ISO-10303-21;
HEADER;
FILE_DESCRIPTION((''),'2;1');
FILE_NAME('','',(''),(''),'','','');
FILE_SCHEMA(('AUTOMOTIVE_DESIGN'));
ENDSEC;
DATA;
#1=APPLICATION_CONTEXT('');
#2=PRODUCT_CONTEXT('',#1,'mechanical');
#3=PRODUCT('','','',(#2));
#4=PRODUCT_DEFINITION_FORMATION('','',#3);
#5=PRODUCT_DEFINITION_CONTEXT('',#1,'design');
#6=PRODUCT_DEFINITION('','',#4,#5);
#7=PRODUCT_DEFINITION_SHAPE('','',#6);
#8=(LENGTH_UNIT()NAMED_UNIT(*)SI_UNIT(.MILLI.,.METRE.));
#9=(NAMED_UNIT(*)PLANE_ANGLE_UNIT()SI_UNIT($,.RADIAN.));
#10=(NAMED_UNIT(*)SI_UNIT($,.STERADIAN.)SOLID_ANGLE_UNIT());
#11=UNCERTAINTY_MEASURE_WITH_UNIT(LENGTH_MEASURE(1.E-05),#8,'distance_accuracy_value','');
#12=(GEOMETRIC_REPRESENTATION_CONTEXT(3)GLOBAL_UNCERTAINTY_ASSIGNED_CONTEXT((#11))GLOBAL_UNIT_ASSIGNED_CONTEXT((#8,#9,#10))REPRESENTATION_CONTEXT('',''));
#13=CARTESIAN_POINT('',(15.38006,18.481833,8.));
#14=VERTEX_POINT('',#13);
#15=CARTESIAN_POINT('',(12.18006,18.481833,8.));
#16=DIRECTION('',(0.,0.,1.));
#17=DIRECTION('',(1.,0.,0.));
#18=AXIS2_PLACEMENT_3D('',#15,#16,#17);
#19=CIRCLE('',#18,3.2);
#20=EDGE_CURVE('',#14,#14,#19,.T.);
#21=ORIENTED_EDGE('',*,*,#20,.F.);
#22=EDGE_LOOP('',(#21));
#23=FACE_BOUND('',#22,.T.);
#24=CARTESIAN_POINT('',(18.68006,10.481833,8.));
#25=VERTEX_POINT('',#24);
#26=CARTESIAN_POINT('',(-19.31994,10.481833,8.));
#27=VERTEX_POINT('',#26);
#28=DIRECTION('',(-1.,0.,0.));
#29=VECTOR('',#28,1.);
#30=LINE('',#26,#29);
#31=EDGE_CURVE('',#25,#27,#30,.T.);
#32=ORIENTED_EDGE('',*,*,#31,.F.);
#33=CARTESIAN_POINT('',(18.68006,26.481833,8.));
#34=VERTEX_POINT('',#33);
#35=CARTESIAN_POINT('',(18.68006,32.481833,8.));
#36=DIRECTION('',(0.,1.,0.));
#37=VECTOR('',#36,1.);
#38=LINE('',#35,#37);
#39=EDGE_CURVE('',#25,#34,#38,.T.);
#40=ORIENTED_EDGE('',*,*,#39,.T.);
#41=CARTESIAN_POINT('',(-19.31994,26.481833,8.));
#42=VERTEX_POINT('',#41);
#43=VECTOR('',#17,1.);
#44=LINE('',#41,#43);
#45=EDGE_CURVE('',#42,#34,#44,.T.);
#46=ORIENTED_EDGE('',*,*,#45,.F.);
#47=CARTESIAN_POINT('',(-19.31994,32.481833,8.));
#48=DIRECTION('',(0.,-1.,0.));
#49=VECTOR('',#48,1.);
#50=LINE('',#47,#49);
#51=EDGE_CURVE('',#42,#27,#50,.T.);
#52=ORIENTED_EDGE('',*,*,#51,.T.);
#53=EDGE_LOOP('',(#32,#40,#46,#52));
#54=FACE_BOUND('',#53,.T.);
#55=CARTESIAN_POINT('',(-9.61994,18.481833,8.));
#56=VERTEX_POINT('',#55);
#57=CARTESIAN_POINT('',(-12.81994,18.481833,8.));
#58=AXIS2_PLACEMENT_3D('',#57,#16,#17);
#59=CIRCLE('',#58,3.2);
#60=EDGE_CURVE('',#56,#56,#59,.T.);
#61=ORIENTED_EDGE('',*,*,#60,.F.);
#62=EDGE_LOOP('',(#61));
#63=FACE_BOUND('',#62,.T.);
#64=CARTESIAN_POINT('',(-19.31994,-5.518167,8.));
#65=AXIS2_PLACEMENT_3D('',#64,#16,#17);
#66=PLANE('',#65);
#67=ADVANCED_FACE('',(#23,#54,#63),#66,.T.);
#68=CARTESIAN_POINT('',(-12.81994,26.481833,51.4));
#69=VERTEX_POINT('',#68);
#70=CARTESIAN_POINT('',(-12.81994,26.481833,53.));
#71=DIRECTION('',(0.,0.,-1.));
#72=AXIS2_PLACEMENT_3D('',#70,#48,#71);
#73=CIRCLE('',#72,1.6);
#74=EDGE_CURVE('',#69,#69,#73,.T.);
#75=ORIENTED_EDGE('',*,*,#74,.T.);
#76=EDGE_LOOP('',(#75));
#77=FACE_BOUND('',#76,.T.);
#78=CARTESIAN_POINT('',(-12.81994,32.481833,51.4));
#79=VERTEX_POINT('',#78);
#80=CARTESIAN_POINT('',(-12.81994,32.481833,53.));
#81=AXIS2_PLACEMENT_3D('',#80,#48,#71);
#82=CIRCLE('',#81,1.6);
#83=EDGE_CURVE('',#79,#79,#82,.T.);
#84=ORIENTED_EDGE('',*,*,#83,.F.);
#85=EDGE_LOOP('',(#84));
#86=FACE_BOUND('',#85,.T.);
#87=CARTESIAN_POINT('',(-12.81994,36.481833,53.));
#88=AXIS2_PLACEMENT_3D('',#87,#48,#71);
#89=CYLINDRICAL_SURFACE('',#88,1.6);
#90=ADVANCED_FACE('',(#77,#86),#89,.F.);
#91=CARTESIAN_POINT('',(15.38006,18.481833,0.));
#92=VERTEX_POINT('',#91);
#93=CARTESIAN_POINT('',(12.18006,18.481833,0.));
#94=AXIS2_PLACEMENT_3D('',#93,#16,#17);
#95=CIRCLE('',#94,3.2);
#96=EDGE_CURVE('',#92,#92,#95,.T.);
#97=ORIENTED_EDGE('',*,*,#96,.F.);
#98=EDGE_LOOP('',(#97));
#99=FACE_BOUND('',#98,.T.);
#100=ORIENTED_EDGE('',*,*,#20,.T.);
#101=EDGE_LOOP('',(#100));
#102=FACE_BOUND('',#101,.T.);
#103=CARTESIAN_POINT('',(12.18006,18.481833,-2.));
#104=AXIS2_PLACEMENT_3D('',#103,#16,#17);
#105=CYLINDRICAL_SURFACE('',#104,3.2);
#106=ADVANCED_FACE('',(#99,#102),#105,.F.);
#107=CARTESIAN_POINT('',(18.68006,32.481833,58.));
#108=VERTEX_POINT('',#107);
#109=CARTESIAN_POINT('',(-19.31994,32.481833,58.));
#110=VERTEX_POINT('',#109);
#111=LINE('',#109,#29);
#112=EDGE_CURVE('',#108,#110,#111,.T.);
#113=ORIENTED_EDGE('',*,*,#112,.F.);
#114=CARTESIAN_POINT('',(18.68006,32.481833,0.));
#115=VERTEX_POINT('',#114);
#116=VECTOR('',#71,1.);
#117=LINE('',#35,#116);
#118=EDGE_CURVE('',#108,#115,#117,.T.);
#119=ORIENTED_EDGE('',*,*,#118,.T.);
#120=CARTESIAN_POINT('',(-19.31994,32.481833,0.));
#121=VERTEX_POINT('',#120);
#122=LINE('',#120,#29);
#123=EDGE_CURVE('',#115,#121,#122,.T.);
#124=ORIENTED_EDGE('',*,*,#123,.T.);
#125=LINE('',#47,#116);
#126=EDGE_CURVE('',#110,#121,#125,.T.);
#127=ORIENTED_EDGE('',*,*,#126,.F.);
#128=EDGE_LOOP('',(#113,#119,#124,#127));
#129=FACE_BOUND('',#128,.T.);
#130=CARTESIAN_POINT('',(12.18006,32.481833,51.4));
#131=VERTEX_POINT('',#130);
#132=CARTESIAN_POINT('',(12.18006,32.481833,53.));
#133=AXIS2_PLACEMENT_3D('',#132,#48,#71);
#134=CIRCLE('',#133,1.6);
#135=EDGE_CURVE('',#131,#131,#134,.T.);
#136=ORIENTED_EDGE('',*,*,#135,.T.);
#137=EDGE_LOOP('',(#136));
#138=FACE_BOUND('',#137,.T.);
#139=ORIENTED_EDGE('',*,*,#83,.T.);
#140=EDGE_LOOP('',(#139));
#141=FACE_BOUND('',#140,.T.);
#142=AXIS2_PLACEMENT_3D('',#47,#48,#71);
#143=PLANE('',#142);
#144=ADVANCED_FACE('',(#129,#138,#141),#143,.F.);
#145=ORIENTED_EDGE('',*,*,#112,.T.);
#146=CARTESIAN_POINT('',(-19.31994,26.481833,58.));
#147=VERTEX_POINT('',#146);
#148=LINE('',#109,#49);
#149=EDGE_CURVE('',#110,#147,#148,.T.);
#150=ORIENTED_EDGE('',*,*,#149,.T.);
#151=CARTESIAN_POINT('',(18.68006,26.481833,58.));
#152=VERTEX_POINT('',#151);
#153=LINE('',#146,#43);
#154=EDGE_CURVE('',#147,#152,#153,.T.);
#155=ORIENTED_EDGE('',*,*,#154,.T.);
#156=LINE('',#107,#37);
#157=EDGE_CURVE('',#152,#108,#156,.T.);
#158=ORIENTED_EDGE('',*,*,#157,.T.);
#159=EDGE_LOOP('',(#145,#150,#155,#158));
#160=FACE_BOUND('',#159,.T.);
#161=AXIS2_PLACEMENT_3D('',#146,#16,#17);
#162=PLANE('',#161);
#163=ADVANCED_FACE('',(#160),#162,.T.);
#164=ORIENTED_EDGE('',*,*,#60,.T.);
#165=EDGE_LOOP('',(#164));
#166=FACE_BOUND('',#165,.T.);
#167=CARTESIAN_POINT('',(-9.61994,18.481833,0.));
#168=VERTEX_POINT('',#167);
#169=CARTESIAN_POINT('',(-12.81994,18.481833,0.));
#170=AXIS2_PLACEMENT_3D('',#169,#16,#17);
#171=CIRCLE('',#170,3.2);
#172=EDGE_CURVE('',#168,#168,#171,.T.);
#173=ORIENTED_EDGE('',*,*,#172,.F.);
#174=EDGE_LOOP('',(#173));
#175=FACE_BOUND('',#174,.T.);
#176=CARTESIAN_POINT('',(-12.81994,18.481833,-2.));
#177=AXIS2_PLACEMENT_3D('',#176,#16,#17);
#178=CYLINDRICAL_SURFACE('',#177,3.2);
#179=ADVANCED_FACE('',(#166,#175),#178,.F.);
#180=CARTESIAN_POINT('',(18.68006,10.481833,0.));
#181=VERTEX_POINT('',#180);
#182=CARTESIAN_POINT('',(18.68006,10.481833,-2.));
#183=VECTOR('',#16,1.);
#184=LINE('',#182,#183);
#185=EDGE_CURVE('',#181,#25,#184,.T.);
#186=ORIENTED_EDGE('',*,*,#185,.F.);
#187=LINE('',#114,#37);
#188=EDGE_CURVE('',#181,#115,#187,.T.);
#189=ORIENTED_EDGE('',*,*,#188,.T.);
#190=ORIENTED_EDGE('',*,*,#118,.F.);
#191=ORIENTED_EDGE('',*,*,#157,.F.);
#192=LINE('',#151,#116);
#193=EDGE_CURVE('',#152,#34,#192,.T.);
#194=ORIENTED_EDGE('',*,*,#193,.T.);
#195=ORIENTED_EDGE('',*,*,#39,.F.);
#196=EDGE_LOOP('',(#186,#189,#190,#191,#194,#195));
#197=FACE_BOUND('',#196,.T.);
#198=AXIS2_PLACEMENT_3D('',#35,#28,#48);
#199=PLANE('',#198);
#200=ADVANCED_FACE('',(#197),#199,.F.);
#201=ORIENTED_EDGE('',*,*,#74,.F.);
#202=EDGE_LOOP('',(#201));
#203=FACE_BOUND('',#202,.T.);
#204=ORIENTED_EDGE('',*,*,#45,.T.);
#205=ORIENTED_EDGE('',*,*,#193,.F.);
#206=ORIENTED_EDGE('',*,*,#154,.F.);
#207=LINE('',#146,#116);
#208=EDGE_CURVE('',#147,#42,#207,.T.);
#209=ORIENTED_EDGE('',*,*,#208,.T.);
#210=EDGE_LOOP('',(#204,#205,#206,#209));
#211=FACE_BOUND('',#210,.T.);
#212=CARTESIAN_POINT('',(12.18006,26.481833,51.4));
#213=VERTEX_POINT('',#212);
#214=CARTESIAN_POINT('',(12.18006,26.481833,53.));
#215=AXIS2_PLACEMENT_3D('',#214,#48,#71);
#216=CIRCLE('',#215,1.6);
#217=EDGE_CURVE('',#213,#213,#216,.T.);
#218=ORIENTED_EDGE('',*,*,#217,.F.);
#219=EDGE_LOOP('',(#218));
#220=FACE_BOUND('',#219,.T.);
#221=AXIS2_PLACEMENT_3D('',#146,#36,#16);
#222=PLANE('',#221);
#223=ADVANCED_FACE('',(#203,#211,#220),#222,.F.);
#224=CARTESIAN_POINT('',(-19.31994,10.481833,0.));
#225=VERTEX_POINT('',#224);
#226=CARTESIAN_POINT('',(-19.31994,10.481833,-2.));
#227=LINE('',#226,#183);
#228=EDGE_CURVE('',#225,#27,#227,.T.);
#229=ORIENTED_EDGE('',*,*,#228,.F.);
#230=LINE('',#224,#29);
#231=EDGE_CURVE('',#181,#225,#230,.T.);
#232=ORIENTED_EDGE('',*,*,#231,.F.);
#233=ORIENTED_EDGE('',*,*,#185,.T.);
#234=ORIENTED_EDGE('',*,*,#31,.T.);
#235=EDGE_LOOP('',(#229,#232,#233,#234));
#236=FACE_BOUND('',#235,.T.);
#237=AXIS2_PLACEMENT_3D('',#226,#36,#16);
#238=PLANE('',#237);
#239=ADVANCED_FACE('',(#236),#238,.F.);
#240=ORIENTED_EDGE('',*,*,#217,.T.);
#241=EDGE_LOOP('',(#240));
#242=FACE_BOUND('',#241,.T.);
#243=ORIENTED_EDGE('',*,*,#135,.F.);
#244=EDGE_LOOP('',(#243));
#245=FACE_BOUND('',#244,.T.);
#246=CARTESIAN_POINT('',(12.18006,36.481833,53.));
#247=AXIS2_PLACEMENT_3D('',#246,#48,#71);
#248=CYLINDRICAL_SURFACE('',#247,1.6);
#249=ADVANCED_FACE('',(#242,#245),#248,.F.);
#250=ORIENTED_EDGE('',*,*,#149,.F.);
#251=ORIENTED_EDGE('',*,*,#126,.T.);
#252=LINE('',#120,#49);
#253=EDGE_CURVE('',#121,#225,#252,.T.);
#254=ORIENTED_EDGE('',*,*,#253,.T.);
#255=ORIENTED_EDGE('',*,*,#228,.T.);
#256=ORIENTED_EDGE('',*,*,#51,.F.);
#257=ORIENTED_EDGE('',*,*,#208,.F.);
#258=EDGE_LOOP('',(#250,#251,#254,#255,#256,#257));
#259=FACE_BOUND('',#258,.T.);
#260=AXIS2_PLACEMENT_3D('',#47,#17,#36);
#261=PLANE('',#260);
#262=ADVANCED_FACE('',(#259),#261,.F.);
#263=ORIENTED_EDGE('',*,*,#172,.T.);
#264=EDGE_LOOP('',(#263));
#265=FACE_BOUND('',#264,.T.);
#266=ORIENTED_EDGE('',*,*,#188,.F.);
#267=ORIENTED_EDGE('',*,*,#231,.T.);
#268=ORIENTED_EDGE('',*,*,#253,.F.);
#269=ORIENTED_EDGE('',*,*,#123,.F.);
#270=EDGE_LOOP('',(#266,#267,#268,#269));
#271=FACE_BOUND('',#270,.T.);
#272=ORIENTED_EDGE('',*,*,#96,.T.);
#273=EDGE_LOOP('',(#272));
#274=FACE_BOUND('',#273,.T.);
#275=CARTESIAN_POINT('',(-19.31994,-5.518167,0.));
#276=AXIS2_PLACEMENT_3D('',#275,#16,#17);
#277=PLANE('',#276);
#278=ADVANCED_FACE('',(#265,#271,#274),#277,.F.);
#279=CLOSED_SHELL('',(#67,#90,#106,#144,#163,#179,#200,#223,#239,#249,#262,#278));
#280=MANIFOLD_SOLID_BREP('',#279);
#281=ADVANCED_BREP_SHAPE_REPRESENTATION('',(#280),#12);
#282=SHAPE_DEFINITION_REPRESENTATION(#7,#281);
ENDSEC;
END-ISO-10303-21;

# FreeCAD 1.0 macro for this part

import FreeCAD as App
import Part
import Sketcher

V = App.Vector

doc = App.newDocument("Part")
params = doc.addObject("Spreadsheet::Sheet", "Params")
for row, (alias, value) in enumerate([
    ("sketch1_width", "38 mm"),
    ("pad1_length", "8 mm"),
    ("sketch2_width", "38 mm"),
    ("sketch2_height", "6 mm"),
    ("pad2_length", "50 mm"),
    ("sketch3_width", "38 mm"),
    ("sketch3_height", "16 mm"),
    ("pocket1_length", "10 mm"),
    ("sketch4_diameter", "6.4 mm"),
    ("pocket2_length", "10 mm"),
    ("sketch5_diameter", "3.2 mm"),
    ("pocket3_length", "10 mm"),
], start=1):
    params.set(f"A{row}", alias)
    params.set(f"B{row}", "=" + value)
    params.setAlias(f"B{row}", alias)

body = doc.addObject("PartDesign::Body", "Body")

sketch1 = body.newObject("Sketcher::SketchObject", "Sketch")
sketch1.AttachmentSupport = (doc.getObject("XY_Plane"), [""])
sketch1.MapMode = "FlatFace"
sketch1.addGeometry([
    Part.LineSegment(V(-19, 32, 0), V(-19, -6, 0)),
    Part.LineSegment(V(-19, -6, 0), V(19, -6, 0)),
    Part.LineSegment(V(19, -6, 0), V(19, 32, 0)),
    Part.LineSegment(V(19, 32, 0), V(-19, 32, 0)),
], False)
sketch1.addConstraint([
    Sketcher.Constraint("Coincident", 0, 2, 1, 1),
    Sketcher.Constraint("Coincident", 1, 2, 2, 1),
    Sketcher.Constraint("Coincident", 2, 2, 3, 1),
    Sketcher.Constraint("Coincident", 3, 2, 0, 1),
    Sketcher.Constraint("Vertical", 0),
    Sketcher.Constraint("Horizontal", 1),
    Sketcher.Constraint("Vertical", 2),
    Sketcher.Constraint("Horizontal", 3),
    Sketcher.Constraint("Equal", 3, 0),
    Sketcher.Constraint("DistanceX", 1, 1, 1, 2, 38.0),
    Sketcher.Constraint("DistanceX", 0, 2, -1, 1, 19.31994),
    Sketcher.Constraint("DistanceY", 0, 2, -1, 1, 5.518167),
])
sketch1.setExpression("Constraints[9]", "Params.sketch1_width")
pad1 = body.newObject("PartDesign::Pad", "Pad")
pad1.Profile = sketch1
pad1.setExpression("Length", "Params.pad1_length")

sketch2 = body.newObject("Sketcher::SketchObject", "Sketch001")
sketch2.AttachmentSupport = (doc.getObject("XY_Plane"), [""])
sketch2.MapMode = "FlatFace"
sketch2.AttachmentOffset = App.Placement(V(0, 0, 8), App.Rotation())
sketch2.addGeometry([
    Part.LineSegment(V(-19, 32, 0), V(-19, 26, 0)),
    Part.LineSegment(V(-19, 26, 0), V(19, 26, 0)),
    Part.LineSegment(V(19, 26, 0), V(19, 32, 0)),
    Part.LineSegment(V(19, 32, 0), V(-19, 32, 0)),
], False)
sketch2.addConstraint([
    Sketcher.Constraint("Coincident", 0, 2, 1, 1),
    Sketcher.Constraint("Coincident", 1, 2, 2, 1),
    Sketcher.Constraint("Coincident", 2, 2, 3, 1),
    Sketcher.Constraint("Coincident", 3, 2, 0, 1),
    Sketcher.Constraint("Vertical", 0),
    Sketcher.Constraint("Horizontal", 1),
    Sketcher.Constraint("Vertical", 2),
    Sketcher.Constraint("Horizontal", 3),
    Sketcher.Constraint("DistanceX", 1, 1, 1, 2, 38.0),
    Sketcher.Constraint("DistanceY", 0, 2, 0, 1, 6.0),
    Sketcher.Constraint("DistanceX", 0, 2, -1, 1, 19.31994),
    Sketcher.Constraint("DistanceY", -1, 1, 0, 2, 26.481833),
])
sketch2.setExpression("Constraints[8]", "Params.sketch2_width")
sketch2.setExpression("Constraints[9]", "Params.sketch2_height")
pad2 = body.newObject("PartDesign::Pad", "Pad001")
pad2.Profile = sketch2
pad2.setExpression("Length", "Params.pad2_length")

sketch3 = body.newObject("Sketcher::SketchObject", "Sketch002")
sketch3.AttachmentSupport = (doc.getObject("XY_Plane"), [""])
sketch3.MapMode = "FlatFace"
sketch3.AttachmentOffset = App.Placement(V(0, 0, 8), App.Rotation())
sketch3.addGeometry([
    Part.LineSegment(V(-19, 10, 0), V(-19, -6, 0)),
    Part.LineSegment(V(-19, -6, 0), V(19, -6, 0)),
    Part.LineSegment(V(19, -6, 0), V(19, 10, 0)),
    Part.LineSegment(V(19, 10, 0), V(-19, 10, 0)),
], False)
sketch3.addConstraint([
    Sketcher.Constraint("Coincident", 0, 2, 1, 1),
    Sketcher.Constraint("Coincident", 1, 2, 2, 1),
    Sketcher.Constraint("Coincident", 2, 2, 3, 1),
    Sketcher.Constraint("Coincident", 3, 2, 0, 1),
    Sketcher.Constraint("Vertical", 0),
    Sketcher.Constraint("Horizontal", 1),
    Sketcher.Constraint("Vertical", 2),
    Sketcher.Constraint("Horizontal", 3),
    Sketcher.Constraint("DistanceX", 1, 1, 1, 2, 38.0),
    Sketcher.Constraint("DistanceY", 0, 2, 0, 1, 16.0),
    Sketcher.Constraint("DistanceX", 0, 2, -1, 1, 19.31994),
    Sketcher.Constraint("DistanceY", 0, 2, -1, 1, 5.518167),
])
sketch3.setExpression("Constraints[8]", "Params.sketch3_width")
sketch3.setExpression("Constraints[9]", "Params.sketch3_height")
pocket1 = body.newObject("PartDesign::Pocket", "Pocket")
pocket1.Profile = sketch3
pocket1.setExpression("Length", "Params.pocket1_length")

sketch4 = body.newObject("Sketcher::SketchObject", "Sketch003")
sketch4.AttachmentSupport = (doc.getObject("XY_Plane"), [""])
sketch4.MapMode = "FlatFace"
sketch4.AttachmentOffset = App.Placement(V(0, 0, 8), App.Rotation())
sketch4.addGeometry([
    Part.Circle(V(-12.8, 18.5, 0), V(0, 0, 1), 3.2),
    Part.Circle(V(12.2, 18.5, 0), V(0, 0, 1), 3.2),
], False)
sketch4.addConstraint([
    Sketcher.Constraint("Equal", 0, 1),
    Sketcher.Constraint("Horizontal", 0, 3, 1, 3),
    Sketcher.Constraint("Diameter", 0, 6.4),
    Sketcher.Constraint("DistanceX", 0, 3, 1, 3, 25.0),
    Sketcher.Constraint("DistanceX", 0, 3, -1, 1, 12.81994),
    Sketcher.Constraint("DistanceY", -1, 1, 0, 3, 18.481833),
])
sketch4.setExpression("Constraints[2]", "Params.sketch4_diameter")
pocket2 = body.newObject("PartDesign::Pocket", "Pocket001")
pocket2.Profile = sketch4
pocket2.setExpression("Length", "Params.pocket2_length")

sketch5 = body.newObject("Sketcher::SketchObject", "Sketch004")
sketch5.AttachmentSupport = (doc.getObject("XZ_Plane"), [""])
sketch5.MapMode = "FlatFace"
sketch5.AttachmentOffset = App.Placement(V(0, 0, -26.481833), App.Rotation())
sketch5.addGeometry([
    Part.Circle(V(12.2, 53, 0), V(0, 0, 1), 1.6),
    Part.Circle(V(-12.8, 53, 0), V(0, 0, 1), 1.6),
], False)
sketch5.addConstraint([
    Sketcher.Constraint("Equal", 0, 1),
    Sketcher.Constraint("Horizontal", 0, 3, 1, 3),
    Sketcher.Constraint("Diameter", 0, 3.2),
    Sketcher.Constraint("DistanceY", -1, 1, 0, 3, 53.0),
    Sketcher.Constraint("DistanceX", 1, 3, 0, 3, 25.0),
    Sketcher.Constraint("DistanceX", -1, 1, 0, 3, 12.18006),
])
sketch5.setExpression("Constraints[2]", "Params.sketch5_diameter")
pocket3 = body.newObject("PartDesign::Pocket", "Pocket002")
pocket3.Profile = sketch5
pocket3.setExpression("Length", "Params.pocket3_length")

doc.recompute()
